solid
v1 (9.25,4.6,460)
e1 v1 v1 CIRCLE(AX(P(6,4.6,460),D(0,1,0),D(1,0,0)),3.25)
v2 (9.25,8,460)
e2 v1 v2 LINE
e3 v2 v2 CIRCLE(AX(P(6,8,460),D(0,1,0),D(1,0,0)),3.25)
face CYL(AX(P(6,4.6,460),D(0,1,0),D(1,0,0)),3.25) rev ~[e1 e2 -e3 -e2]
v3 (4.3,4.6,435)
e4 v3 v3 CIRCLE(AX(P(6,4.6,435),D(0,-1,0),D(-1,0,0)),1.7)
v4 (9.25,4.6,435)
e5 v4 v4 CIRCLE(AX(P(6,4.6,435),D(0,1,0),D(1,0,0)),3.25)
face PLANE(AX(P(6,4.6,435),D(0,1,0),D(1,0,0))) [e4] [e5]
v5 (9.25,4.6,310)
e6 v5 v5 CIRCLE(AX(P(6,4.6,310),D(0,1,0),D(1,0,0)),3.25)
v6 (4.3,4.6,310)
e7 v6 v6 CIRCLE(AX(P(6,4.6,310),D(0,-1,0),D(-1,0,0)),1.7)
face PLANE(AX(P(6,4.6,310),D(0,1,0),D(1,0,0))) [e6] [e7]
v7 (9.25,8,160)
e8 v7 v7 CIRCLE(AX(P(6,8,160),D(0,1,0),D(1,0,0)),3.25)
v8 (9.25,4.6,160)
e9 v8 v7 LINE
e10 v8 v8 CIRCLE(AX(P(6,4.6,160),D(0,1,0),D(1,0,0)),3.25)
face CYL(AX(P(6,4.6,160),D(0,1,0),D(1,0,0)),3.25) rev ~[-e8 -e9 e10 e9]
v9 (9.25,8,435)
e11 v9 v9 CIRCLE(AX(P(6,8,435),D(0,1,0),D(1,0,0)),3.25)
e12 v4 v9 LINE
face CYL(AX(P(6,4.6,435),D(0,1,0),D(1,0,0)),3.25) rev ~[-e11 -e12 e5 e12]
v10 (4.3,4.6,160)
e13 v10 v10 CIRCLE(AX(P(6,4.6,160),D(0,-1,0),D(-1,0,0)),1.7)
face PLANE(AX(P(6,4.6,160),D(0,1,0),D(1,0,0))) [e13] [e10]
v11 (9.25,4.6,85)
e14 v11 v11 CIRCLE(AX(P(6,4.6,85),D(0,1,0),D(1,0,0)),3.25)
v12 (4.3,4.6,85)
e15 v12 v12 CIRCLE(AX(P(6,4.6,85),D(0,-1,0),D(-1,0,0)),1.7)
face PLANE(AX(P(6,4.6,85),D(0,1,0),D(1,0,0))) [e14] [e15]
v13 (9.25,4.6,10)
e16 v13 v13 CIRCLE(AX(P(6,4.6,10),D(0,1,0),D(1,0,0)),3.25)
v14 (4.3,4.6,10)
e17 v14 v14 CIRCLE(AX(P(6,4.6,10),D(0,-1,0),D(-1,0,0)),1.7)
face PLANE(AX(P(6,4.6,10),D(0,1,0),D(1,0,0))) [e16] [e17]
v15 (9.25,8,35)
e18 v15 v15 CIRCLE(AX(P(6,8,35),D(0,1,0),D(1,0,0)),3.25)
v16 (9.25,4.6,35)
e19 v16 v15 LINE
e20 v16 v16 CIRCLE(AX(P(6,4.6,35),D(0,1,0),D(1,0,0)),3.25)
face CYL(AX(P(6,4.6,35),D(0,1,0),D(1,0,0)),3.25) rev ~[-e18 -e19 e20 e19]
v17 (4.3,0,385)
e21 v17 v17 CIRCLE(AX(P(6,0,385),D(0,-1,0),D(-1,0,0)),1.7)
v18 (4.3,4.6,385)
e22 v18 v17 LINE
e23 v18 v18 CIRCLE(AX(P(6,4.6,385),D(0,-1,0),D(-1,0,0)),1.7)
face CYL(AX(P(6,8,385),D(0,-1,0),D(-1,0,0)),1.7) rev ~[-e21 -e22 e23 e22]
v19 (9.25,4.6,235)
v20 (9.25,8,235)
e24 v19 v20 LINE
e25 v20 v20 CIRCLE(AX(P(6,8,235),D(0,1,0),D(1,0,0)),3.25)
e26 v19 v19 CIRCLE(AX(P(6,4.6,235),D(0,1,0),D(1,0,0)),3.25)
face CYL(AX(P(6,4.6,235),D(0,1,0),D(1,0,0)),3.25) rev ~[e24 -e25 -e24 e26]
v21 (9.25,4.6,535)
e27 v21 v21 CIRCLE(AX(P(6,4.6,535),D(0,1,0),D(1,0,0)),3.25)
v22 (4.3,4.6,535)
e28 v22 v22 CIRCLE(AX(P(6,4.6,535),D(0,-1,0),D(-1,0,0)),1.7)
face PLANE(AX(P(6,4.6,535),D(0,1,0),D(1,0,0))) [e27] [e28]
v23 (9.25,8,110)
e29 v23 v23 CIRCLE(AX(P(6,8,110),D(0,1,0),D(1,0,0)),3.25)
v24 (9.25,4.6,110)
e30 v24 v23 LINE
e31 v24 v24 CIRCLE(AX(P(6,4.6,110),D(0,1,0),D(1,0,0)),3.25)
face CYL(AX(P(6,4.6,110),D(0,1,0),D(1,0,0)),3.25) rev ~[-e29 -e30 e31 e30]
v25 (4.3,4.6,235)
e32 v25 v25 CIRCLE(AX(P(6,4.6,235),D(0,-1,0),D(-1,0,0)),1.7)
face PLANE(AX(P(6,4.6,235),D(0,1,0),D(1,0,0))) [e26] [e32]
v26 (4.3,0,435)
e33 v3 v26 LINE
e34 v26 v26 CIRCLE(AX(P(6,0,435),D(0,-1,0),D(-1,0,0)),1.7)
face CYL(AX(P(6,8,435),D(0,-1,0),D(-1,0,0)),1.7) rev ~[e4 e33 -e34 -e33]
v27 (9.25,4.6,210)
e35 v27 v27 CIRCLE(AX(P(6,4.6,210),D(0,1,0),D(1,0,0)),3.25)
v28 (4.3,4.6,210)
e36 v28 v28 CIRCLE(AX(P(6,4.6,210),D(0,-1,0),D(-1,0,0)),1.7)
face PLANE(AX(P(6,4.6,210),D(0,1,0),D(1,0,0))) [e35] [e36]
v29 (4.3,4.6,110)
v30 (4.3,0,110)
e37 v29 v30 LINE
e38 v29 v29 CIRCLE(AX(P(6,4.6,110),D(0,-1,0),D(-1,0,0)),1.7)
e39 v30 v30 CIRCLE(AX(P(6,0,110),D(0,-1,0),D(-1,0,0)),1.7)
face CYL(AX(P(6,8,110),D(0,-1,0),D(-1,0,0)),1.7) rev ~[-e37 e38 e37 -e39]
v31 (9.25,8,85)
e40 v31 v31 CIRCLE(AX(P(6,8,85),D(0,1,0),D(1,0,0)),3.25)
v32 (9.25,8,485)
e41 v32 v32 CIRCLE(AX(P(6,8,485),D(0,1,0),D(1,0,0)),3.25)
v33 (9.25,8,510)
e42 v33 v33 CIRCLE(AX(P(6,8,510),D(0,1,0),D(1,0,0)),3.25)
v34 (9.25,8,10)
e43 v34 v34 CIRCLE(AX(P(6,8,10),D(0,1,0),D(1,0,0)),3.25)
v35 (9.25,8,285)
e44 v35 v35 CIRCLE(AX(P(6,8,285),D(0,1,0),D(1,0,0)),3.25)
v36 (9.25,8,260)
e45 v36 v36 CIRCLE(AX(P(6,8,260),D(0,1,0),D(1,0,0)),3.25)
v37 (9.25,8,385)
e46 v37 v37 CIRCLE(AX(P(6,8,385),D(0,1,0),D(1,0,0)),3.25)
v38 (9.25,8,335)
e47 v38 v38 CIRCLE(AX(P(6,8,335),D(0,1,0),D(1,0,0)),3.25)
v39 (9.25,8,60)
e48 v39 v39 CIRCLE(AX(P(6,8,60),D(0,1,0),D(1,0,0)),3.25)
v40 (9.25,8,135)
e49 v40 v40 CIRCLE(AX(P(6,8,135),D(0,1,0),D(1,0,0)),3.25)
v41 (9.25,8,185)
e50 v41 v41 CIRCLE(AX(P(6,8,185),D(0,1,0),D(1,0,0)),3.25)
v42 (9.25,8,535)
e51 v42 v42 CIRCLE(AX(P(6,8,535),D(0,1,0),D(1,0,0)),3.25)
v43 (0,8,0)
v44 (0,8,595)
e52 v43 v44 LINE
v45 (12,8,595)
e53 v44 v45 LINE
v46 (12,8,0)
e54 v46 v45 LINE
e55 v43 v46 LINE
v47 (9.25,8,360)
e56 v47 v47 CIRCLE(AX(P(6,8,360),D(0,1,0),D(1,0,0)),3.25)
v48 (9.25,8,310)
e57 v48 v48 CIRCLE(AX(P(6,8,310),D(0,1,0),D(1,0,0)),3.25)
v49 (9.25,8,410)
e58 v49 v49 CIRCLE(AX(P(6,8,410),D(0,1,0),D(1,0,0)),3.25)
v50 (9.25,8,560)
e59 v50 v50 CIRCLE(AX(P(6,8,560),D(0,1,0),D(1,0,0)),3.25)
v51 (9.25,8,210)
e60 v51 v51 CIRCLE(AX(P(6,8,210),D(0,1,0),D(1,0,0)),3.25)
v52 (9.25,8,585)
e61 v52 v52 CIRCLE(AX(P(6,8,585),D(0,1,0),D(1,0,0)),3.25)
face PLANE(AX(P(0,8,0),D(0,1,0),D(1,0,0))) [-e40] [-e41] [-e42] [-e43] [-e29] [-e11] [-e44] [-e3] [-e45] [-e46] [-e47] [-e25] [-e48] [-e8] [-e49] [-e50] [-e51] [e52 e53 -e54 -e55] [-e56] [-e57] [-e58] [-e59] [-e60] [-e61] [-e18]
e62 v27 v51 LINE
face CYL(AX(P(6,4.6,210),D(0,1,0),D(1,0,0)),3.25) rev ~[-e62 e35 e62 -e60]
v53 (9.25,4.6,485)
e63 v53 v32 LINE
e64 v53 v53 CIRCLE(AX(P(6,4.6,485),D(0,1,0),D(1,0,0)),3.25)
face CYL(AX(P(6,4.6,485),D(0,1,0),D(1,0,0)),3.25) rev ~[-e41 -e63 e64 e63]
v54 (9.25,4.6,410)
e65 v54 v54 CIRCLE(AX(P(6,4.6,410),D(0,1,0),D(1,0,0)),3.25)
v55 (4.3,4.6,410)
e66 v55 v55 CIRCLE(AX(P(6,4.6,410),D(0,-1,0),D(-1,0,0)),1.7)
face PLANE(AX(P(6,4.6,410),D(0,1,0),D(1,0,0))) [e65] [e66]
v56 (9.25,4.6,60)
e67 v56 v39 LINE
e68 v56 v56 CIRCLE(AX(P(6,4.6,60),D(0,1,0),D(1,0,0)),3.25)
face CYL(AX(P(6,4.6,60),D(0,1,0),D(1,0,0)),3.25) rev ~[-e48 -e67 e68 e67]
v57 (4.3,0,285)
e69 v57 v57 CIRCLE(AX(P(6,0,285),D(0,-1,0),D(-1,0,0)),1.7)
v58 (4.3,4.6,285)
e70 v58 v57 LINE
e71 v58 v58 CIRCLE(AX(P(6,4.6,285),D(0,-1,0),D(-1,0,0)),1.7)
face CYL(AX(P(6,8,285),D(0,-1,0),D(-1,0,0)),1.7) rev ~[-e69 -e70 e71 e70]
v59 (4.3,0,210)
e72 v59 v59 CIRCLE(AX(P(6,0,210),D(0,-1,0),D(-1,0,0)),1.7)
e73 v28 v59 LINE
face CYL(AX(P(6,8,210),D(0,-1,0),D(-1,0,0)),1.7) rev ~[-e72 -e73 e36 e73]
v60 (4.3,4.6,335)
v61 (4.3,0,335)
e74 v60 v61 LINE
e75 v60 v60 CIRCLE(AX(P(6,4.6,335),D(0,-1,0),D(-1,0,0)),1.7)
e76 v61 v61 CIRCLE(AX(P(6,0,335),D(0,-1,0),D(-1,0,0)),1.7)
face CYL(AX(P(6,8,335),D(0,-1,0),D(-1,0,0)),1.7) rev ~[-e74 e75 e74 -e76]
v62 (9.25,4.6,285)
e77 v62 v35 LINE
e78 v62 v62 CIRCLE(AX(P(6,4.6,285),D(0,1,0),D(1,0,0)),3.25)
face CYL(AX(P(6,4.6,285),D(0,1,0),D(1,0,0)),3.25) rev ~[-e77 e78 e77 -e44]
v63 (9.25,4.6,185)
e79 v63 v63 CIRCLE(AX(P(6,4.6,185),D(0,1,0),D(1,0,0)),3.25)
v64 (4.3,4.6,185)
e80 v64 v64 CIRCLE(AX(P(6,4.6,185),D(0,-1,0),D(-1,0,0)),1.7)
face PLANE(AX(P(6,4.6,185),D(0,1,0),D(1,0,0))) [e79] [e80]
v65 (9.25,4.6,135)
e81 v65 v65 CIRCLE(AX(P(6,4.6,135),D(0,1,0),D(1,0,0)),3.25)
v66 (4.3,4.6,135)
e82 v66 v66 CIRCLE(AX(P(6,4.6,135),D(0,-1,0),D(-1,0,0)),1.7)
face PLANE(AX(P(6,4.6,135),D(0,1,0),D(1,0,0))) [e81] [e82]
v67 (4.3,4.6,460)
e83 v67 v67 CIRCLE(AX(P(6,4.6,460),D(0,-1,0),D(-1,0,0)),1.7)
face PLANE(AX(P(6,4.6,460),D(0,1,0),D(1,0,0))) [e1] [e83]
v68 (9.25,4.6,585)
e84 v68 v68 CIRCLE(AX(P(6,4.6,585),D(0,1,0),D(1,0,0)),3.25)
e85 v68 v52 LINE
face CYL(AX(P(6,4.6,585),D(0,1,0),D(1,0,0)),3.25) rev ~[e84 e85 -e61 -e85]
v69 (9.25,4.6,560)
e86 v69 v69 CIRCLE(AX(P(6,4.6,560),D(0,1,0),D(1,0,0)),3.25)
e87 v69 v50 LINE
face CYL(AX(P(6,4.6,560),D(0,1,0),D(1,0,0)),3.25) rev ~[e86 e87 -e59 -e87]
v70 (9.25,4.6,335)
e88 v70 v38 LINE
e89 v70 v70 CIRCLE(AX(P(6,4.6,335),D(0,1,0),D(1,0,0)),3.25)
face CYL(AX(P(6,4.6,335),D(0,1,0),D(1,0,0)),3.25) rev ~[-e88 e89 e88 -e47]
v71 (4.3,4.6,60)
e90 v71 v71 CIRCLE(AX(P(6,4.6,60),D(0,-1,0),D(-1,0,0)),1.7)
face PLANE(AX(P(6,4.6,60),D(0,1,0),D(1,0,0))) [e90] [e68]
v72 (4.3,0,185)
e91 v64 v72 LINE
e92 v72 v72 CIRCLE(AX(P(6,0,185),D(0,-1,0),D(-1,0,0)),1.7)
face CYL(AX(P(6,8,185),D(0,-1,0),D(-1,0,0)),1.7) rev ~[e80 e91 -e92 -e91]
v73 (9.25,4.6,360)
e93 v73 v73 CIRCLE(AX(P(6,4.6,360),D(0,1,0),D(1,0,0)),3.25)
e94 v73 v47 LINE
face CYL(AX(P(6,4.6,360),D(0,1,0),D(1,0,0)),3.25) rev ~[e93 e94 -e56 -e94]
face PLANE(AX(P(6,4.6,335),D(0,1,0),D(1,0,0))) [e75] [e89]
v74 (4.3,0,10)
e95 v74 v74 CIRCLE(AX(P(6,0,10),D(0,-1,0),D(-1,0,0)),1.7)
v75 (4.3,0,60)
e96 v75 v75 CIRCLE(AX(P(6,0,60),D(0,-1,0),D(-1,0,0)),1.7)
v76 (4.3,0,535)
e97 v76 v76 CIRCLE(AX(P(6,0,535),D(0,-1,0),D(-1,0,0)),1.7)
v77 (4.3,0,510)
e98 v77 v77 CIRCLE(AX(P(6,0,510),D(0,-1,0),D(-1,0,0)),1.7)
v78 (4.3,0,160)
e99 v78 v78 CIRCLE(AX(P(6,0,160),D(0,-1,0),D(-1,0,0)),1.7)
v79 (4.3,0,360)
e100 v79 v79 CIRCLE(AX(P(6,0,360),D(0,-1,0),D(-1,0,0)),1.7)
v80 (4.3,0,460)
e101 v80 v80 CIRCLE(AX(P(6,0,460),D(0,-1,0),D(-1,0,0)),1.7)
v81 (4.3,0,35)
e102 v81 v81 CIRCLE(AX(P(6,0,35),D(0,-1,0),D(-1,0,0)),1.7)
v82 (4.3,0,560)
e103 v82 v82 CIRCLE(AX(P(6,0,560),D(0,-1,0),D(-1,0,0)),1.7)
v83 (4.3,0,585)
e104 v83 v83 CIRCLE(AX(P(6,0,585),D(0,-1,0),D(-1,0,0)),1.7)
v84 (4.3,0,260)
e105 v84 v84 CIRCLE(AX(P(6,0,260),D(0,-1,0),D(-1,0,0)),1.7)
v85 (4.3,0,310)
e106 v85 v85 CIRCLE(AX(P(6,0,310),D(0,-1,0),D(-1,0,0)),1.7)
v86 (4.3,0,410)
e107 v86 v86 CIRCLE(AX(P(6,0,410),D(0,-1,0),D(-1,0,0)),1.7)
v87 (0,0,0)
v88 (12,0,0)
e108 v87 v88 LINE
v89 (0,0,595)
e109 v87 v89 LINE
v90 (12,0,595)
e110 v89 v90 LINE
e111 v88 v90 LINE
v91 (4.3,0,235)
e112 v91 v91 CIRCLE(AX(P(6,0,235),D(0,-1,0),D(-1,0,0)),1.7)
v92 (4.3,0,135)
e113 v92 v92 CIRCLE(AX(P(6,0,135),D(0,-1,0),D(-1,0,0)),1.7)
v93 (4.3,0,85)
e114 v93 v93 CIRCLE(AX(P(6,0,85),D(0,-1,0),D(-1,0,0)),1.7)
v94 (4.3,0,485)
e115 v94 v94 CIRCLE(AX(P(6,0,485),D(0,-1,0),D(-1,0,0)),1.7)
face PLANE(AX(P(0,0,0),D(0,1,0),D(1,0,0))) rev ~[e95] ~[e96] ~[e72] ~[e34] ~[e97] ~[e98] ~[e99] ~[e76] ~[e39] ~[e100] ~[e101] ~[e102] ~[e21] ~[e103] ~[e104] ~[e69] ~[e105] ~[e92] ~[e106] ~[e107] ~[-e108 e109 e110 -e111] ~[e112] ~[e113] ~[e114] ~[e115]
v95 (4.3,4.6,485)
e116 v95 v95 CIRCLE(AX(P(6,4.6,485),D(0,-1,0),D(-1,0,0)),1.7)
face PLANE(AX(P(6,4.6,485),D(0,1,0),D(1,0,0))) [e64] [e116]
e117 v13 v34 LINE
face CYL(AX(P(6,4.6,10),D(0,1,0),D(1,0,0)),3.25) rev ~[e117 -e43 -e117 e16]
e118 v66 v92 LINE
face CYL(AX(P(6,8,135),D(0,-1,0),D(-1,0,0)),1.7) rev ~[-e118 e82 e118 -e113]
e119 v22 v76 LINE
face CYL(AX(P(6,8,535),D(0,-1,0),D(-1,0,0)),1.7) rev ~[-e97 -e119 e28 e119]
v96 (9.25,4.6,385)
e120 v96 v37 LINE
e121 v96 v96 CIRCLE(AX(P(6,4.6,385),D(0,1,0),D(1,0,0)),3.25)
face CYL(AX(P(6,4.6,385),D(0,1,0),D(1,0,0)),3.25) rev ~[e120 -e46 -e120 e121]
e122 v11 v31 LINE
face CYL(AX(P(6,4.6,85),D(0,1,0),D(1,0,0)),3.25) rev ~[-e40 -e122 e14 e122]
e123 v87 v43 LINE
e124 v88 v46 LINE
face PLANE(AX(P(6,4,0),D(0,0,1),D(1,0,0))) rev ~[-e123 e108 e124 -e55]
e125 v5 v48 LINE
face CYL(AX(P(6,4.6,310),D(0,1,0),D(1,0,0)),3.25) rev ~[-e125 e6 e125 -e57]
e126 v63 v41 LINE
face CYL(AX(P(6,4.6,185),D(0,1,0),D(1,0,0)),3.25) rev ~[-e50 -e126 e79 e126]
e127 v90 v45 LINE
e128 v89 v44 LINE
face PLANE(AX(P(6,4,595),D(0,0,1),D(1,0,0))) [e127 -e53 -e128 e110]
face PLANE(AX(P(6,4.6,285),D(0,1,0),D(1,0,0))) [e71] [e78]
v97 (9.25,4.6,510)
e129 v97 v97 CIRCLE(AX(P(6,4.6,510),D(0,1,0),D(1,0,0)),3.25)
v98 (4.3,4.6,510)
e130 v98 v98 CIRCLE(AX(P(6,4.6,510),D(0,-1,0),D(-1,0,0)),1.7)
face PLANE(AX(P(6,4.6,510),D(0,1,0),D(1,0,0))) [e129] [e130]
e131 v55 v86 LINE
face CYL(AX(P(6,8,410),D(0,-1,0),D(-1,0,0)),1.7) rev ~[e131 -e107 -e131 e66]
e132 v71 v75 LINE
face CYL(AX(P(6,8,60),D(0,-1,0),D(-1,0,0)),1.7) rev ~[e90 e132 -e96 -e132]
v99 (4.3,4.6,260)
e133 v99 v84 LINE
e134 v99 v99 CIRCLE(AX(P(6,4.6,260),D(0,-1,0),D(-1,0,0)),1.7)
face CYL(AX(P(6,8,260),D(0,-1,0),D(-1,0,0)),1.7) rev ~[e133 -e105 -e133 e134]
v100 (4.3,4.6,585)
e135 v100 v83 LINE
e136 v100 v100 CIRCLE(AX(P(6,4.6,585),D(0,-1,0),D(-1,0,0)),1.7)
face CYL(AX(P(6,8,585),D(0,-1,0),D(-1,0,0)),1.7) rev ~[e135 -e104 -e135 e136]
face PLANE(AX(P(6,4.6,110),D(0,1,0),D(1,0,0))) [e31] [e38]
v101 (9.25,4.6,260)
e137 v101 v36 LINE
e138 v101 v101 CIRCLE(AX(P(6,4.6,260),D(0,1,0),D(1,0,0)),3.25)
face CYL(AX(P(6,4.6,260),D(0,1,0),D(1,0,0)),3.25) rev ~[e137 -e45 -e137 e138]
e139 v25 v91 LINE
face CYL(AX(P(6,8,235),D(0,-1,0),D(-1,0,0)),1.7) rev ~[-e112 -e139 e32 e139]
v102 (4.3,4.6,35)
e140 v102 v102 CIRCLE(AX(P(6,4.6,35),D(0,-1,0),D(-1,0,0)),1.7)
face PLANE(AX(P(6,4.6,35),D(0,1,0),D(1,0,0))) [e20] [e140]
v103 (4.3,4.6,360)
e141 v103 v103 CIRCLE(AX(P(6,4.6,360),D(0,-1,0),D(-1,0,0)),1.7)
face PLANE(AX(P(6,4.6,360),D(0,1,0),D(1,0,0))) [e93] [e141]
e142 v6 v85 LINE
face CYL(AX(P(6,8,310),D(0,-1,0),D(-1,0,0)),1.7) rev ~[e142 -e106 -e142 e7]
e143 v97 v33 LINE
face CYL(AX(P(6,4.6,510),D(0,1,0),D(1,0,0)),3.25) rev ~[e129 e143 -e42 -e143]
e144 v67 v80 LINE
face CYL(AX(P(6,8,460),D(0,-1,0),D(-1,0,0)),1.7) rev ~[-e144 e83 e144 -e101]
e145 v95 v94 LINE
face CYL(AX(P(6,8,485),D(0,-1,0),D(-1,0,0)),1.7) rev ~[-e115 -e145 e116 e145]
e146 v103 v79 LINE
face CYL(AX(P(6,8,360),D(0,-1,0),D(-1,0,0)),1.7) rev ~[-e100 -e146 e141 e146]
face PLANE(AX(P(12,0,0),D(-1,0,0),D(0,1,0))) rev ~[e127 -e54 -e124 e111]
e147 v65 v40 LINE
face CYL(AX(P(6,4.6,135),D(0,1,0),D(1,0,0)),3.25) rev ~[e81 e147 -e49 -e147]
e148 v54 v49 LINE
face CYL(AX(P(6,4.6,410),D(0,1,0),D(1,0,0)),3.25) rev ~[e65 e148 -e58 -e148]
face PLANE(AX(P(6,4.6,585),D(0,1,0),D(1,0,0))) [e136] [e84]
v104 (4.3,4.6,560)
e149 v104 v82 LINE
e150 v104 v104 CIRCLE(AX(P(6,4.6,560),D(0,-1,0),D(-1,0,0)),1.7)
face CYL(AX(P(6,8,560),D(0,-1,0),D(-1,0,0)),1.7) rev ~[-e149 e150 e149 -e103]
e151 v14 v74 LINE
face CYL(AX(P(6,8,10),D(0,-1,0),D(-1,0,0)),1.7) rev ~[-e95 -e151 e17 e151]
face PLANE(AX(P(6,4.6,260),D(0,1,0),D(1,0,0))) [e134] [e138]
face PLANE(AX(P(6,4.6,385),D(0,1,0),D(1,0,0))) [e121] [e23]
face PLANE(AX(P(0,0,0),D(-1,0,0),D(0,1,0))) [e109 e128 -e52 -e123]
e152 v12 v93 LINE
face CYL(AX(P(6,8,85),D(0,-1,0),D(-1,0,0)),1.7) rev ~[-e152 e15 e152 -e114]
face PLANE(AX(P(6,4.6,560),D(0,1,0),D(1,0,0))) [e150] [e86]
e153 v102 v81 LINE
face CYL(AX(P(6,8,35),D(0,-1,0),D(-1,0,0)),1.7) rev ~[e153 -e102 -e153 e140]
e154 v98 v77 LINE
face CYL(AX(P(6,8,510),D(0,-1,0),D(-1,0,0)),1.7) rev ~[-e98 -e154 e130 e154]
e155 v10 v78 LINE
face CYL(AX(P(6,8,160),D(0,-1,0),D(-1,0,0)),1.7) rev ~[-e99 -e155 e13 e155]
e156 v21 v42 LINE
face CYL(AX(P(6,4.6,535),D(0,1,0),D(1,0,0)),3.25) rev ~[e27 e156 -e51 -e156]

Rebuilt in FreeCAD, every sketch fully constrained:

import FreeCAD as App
import Part
import Sketcher

V = App.Vector


def add_polygon(sketch, points):
    """Adds a closed chain of lines whose ends are joined by coincident constraints."""
    first, n = sketch.GeometryCount, len(points)
    for a, b in zip(points, points[1:] + points[:1]):
        sketch.addGeometry(Part.LineSegment(App.Vector(*a, 0), App.Vector(*b, 0)), False)
    for i in range(n):
        sketch.addConstraint(Sketcher.Constraint("Coincident", first + i, 2, first + (i + 1) % n, 1))

doc = App.newDocument("Part")
body = doc.addObject("PartDesign::Body", "Body")

sketch1 = body.newObject("Sketcher::SketchObject", "Sketch")
sketch1.AttachmentSupport = (doc.getObject("XY_Plane"), [""])
sketch1.MapMode = "FlatFace"
add_polygon(sketch1, [(0, 8), (0, 0), (12, 0), (12, 8)])
sketch1.addConstraint([
    Sketcher.Constraint("Vertical", 0),
    Sketcher.Constraint("Horizontal", 1),
    Sketcher.Constraint("Vertical", 2),
    Sketcher.Constraint("Horizontal", 3),
    Sketcher.Constraint("Coincident", 0, 2, -1, 1),
    Sketcher.Constraint("DistanceX", 1, 1, 1, 2, 12.0),
    Sketcher.Constraint("DistanceY", 0, 2, 0, 1, 8.0),
])
pad1 = body.newObject("PartDesign::Pad", "Pad")
pad1.Profile = sketch1
pad1.Length = 595

sketch2 = body.newObject("Sketcher::SketchObject", "Sketch001")
sketch2.AttachmentSupport = (doc.getObject("XZ_Plane"), [""])
sketch2.MapMode = "FlatFace"
sketch2.AttachmentOffset = App.Placement(V(0, 0, -8), App.Rotation())
sketch2.addGeometry(Part.Circle(V(6, 585, 0), V(0, 0, 1), 1.7), False)
sketch2.addConstraint([
    Sketcher.Constraint("Diameter", 0, 3.4),
    Sketcher.Constraint("DistanceX", -1, 1, 0, 3, 6.0),
    Sketcher.Constraint("DistanceY", -1, 1, 0, 3, 585.0),
])
doc.recompute()
hole = body.newObject("PartDesign::Hole", "Hole")
hole.Profile = sketch2
hole.ThreadType = "None"
hole.Diameter = 3.4
hole.DepthType = "ThroughAll"
hole.HoleCutType = "Counterbore"
hole.HoleCutDiameter = 6.5
hole.HoleCutDepth = 3.4
hole.Reversed = True
doc.recompute()

linearpattern = body.newObject("PartDesign::LinearPattern", "LinearPattern")
linearpattern.Originals = [hole]
linearpattern.Direction = (doc.getObject("Z_Axis"), [""])
linearpattern.Mode = "offset"
linearpattern.Offset = 25
linearpattern.Occurrences = 24
linearpattern.Reversed = True
body.Tip = linearpattern

doc.recompute()
